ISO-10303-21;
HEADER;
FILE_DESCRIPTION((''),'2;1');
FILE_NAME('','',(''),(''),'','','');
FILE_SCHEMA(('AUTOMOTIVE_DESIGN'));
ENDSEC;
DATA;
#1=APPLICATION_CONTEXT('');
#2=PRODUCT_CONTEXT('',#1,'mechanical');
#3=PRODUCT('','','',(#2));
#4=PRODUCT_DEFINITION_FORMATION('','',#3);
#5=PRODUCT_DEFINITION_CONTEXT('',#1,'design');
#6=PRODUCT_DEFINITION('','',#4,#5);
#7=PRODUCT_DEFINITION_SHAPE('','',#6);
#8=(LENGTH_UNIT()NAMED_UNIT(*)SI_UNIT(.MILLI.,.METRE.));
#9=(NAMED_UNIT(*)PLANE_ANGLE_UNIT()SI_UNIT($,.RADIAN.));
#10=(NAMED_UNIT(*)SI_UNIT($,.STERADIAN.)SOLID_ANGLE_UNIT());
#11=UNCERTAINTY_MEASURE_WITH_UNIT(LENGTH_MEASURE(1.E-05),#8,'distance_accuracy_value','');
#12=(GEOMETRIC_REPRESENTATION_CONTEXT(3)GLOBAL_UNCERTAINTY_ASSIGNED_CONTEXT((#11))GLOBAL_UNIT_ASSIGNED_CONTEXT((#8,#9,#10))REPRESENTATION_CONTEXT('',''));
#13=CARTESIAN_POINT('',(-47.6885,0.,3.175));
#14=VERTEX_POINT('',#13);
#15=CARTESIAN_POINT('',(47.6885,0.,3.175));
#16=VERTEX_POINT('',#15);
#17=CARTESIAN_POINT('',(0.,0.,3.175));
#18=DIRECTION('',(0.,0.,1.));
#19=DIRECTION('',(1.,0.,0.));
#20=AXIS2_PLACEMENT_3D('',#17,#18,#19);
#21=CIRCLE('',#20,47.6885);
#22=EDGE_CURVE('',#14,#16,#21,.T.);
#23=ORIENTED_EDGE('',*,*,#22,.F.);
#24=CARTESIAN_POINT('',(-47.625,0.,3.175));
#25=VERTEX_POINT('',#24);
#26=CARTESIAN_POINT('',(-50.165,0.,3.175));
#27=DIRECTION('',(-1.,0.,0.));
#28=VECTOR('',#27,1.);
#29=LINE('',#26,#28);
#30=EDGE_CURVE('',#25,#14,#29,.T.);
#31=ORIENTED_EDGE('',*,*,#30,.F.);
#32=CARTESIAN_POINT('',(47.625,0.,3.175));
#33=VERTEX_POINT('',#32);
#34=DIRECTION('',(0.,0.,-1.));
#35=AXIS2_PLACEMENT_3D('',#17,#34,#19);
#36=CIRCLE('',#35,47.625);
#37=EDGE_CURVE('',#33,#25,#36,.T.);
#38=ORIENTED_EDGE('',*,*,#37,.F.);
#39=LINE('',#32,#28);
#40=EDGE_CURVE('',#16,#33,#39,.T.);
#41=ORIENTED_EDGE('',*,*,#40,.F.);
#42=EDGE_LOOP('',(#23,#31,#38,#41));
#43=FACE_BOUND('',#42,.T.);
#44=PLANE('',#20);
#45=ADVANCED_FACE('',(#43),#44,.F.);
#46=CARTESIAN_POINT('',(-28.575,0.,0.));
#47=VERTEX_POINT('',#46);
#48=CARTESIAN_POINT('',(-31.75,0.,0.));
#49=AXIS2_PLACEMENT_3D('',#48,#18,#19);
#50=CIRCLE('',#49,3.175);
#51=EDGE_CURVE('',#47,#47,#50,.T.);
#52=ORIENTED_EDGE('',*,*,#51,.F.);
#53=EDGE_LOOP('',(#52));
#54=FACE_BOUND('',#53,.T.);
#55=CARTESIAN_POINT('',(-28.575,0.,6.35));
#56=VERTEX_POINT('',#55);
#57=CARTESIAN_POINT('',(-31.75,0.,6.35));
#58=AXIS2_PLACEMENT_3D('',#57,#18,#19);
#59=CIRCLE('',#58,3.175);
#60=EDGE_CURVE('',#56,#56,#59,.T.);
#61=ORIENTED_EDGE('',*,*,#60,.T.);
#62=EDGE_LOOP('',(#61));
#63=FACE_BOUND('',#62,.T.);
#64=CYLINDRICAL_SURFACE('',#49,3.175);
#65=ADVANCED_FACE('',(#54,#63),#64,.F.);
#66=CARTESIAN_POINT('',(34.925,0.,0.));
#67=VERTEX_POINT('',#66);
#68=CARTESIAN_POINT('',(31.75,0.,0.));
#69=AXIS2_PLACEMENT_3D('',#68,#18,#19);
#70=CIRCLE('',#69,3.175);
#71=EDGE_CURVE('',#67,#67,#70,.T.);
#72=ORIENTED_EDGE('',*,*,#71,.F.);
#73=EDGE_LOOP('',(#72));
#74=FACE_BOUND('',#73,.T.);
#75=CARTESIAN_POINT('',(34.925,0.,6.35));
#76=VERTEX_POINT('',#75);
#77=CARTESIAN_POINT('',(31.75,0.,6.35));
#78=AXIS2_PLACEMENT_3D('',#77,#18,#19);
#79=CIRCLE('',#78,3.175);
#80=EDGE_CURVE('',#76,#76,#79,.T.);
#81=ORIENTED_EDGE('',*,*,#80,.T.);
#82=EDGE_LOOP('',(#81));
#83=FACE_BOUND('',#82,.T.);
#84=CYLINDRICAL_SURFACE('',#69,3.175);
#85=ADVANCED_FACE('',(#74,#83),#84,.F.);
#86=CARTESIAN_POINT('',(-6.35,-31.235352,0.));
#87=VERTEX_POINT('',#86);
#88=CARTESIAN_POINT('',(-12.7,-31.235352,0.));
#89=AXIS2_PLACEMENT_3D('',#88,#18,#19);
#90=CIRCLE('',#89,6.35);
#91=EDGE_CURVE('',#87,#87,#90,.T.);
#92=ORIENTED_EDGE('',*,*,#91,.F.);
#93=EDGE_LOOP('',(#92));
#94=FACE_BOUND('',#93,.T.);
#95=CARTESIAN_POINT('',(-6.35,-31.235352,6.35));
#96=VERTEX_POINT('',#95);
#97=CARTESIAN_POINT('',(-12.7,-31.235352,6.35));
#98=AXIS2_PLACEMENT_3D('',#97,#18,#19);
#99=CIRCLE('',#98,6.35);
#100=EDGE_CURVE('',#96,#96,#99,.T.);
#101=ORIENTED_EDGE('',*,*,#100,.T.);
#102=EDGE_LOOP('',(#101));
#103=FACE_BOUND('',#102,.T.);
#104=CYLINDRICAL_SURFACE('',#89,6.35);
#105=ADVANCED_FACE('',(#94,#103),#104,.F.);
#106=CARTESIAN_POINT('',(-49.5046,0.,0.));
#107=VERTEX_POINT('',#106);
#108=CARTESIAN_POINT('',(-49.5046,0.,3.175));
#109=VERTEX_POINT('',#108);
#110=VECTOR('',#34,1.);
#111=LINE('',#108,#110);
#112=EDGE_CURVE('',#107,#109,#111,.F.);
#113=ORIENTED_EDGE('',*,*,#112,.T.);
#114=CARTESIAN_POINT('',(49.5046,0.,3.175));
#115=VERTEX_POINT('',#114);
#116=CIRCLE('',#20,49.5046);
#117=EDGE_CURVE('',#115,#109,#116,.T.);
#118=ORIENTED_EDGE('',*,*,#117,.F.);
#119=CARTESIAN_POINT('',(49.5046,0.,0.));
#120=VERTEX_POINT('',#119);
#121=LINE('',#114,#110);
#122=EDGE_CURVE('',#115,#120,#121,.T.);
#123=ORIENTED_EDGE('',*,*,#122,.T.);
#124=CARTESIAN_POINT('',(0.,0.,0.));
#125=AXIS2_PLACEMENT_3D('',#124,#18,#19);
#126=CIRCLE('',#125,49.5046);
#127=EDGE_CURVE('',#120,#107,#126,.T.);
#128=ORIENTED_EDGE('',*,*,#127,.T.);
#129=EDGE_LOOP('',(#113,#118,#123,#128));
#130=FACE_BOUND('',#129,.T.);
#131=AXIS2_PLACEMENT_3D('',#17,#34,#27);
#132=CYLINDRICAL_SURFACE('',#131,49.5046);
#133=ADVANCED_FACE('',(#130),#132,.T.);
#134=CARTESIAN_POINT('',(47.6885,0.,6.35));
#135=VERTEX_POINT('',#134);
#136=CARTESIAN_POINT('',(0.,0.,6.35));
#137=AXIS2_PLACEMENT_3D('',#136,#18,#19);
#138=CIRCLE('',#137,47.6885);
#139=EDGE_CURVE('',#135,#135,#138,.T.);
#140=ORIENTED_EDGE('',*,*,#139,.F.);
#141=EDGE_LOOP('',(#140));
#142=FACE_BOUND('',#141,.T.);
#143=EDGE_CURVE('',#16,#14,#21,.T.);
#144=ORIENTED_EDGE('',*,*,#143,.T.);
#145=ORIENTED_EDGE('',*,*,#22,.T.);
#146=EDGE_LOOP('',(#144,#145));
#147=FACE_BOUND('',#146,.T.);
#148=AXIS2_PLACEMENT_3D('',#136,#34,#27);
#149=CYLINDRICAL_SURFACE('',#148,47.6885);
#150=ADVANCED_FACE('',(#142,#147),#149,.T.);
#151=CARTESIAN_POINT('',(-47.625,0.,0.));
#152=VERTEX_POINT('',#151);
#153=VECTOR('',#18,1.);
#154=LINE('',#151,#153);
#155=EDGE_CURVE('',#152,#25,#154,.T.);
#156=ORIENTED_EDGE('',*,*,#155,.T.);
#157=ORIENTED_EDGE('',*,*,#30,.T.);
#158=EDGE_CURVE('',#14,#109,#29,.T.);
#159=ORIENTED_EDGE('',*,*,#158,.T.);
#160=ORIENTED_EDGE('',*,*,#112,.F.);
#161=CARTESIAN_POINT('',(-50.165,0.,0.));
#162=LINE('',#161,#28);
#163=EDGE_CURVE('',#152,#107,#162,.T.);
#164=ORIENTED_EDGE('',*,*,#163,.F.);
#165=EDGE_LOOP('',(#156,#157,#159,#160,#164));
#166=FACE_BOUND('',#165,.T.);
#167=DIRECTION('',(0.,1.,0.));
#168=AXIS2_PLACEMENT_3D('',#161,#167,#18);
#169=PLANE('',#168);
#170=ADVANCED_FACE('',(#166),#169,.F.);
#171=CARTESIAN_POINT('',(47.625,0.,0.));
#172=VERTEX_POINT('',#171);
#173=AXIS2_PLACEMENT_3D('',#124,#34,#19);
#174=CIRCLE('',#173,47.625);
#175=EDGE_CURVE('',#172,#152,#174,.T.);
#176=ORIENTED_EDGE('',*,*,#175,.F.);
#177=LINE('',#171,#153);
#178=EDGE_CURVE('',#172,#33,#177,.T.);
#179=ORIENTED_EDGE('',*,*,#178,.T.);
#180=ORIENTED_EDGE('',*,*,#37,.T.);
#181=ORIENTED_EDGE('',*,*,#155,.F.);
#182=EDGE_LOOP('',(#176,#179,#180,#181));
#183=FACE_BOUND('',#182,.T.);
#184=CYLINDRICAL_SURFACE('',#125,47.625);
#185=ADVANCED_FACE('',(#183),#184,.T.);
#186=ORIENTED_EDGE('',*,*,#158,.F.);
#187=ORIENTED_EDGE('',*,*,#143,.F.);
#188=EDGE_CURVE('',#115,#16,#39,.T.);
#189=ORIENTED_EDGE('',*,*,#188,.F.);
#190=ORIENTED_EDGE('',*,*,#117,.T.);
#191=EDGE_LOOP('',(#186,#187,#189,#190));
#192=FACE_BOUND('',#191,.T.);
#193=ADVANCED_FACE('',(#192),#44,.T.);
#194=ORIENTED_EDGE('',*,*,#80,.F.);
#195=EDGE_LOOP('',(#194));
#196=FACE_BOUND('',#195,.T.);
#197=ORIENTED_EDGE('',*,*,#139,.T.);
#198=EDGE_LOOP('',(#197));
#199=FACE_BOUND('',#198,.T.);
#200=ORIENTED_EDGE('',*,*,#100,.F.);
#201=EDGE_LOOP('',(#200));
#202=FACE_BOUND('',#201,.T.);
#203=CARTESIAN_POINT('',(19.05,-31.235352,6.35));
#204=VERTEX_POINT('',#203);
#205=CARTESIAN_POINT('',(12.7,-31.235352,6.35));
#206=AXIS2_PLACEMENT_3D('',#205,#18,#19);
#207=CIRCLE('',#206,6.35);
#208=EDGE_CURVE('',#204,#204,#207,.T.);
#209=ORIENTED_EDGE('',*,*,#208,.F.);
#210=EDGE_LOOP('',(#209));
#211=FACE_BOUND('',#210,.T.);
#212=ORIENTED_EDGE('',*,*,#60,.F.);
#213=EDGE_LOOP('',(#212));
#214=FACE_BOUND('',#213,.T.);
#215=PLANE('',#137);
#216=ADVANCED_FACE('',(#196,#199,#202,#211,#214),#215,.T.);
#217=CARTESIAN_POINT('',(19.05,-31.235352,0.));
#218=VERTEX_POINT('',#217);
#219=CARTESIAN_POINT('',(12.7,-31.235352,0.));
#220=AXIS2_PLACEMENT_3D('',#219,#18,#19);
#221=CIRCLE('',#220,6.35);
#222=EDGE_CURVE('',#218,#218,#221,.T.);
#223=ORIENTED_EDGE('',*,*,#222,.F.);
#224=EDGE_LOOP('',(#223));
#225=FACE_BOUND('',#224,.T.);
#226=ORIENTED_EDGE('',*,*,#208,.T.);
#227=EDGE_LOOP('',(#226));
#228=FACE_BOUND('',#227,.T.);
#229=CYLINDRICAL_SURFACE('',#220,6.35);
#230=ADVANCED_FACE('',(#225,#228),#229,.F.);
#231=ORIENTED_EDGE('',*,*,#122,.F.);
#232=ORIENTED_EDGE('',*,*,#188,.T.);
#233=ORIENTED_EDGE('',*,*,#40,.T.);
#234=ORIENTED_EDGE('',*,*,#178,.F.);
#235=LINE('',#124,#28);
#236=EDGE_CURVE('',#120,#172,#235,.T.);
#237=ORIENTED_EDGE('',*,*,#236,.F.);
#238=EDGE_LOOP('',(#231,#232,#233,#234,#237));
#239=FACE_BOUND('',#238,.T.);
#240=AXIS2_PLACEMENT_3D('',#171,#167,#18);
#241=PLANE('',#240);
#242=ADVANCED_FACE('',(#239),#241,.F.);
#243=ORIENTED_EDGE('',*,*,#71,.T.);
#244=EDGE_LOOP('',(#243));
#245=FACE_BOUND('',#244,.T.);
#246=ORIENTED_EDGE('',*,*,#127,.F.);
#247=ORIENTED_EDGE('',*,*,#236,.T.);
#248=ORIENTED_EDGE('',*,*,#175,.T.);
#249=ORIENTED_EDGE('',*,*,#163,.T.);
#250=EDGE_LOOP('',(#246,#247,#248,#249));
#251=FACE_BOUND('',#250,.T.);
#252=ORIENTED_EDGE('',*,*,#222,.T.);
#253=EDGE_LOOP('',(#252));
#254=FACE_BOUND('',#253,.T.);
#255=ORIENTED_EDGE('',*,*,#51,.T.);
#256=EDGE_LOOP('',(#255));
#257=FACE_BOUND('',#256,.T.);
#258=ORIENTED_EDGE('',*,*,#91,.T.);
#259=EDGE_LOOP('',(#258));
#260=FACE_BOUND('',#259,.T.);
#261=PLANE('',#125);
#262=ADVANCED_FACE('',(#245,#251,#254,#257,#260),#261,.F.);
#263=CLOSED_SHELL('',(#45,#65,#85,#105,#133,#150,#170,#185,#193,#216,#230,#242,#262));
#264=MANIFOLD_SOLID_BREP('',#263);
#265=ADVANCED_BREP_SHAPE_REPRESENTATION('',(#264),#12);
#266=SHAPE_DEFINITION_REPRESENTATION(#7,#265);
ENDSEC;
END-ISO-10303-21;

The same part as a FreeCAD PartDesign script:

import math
import FreeCAD as App
import Part
import Sketcher

V = App.Vector
Q = App.Units.Quantity

doc = App.newDocument("Part")
params = doc.addObject("Spreadsheet::Sheet", "Params")
for row, (alias, value) in enumerate([
    ("sketch1_diameter", "3.898 in"),
    ("pad1_length", "0.125 in"),
    ("sketch2_diameter", "3.755 in"),
    ("pad2_length", "0.125 in"),
    ("sketch3_diameter", "0.5 in"),
    ("sketch3_diameter2", "0.25 in"),
    ("sketch4_width", "0.1 in"),
    ("sketch4_radius", "1.975 in"),
], start=1):
    params.set(f"A{row}", alias)
    params.set(f"B{row}", "=" + value)
    params.setAlias(f"B{row}", alias)

body = doc.addObject("PartDesign::Body", "Body")

sketch1 = body.newObject("Sketcher::SketchObject", "Sketch")
sketch1.AttachmentSupport = (doc.getObject("XY_Plane"), [""])
sketch1.MapMode = "FlatFace"
sketch1.addGeometry(Part.Circle(V(0, 0, 0), V(0, 0, 1), 50), False)
sketch1.addConstraint([
    Sketcher.Constraint("Coincident", 0, 3, -1, 1),
    Sketcher.Constraint("Diameter", 0, Q("3.898 in")),
])
sketch1.setExpression("Constraints[1]", "Params.sketch1_diameter")
pad1 = body.newObject("PartDesign::Pad", "Pad")
pad1.Profile = sketch1
pad1.setExpression("Length", "Params.pad1_length")

sketch2 = body.newObject("Sketcher::SketchObject", "Sketch001")
sketch2.AttachmentSupport = (doc.getObject("XY_Plane"), [""])
sketch2.MapMode = "FlatFace"
sketch2.AttachmentOffset = App.Placement(V(0, 0, 0.125 * 25.4), App.Rotation())
sketch2.addGeometry(Part.Circle(V(0, 0, 0), V(0, 0, 1), 48), False)
sketch2.addConstraint([
    Sketcher.Constraint("Coincident", 0, 3, -1, 1),
    Sketcher.Constraint("Diameter", 0, Q("3.755 in")),
])
sketch2.setExpression("Constraints[1]", "Params.sketch2_diameter")
pad2 = body.newObject("PartDesign::Pad", "Pad001")
pad2.Profile = sketch2
pad2.setExpression("Length", "Params.pad2_length")

sketch3 = body.newObject("Sketcher::SketchObject", "Sketch002")
sketch3.AttachmentSupport = (doc.getObject("XY_Plane"), [""])
sketch3.MapMode = "FlatFace"
sketch3.AttachmentOffset = App.Placement(V(0, 0, 0.25 * 25.4), App.Rotation())
sketch3.addGeometry([
    Part.Circle(V(-31.8, 0, 0), V(0, 0, 1), 3.2),
    Part.Circle(V(31.8, 0, 0), V(0, 0, 1), 3.2),
    Part.Circle(V(-12.7, -31.2, 0), V(0, 0, 1), 6.3),
    Part.Circle(V(12.7, -31.2, 0), V(0, 0, 1), 6.3),
], False)
sketch3.addConstraint([
    Sketcher.Constraint("Equal", 0, 1),
    Sketcher.Constraint("Equal", 2, 3),
    Sketcher.Constraint("Symmetric", 0, 3, 1, 3, -1, 1),
    Sketcher.Constraint("Symmetric", 2, 3, 3, 3, -2),
    Sketcher.Constraint("PointOnObject", 0, 3, -1),
    Sketcher.Constraint("Diameter", 2, Q("0.5 in")),
    Sketcher.Constraint("Diameter", 0, Q("0.25 in")),
    Sketcher.Constraint("DistanceX", 2, 3, 3, 3, Q("1 in")),
    Sketcher.Constraint("DistanceX", 0, 3, 1, 3, Q("2.5 in")),
    Sketcher.Constraint("DistanceY", 2, 3, -1, 1, 31.235352),
])
sketch3.setExpression("Constraints[5]", "Params.sketch3_diameter")
sketch3.setExpression("Constraints[6]", "Params.sketch3_diameter2")
pocket1 = body.newObject("PartDesign::Pocket", "Pocket")
pocket1.Profile = sketch3
pocket1.Type = "ThroughAll"

sketch4 = body.newObject("Sketcher::SketchObject", "Sketch003")
sketch4.AttachmentSupport = (doc.getObject("XY_Plane"), [""])
sketch4.MapMode = "FlatFace"
sketch4.AttachmentOffset = App.Placement(V(0, 0, 0.125 * 25.4), App.Rotation())
sketch4.addGeometry([
    Part.LineSegment(V(-47.6, 0, 0), V(-50.2, 0, 0)),
    Part.ArcOfCircle(Part.Circle(V(0, 0, 0), V(0, 0, 1), 50.2), math.radians(180), math.radians(360)),
    Part.LineSegment(V(50.2, 0, 0), V(47.6, 0, 0)),
    Part.ArcOfCircle(Part.Circle(V(0, 0, 0), V(0, 0, 1), 47.6), math.radians(180), math.radians(360)),
], False)
sketch4.addConstraint([
    Sketcher.Constraint("Coincident", 0, 2, 1, 1),
    Sketcher.Constraint("Coincident", 1, 2, 2, 1),
    Sketcher.Constraint("Coincident", 2, 2, 3, 2),
    Sketcher.Constraint("Coincident", 3, 1, 0, 1),
    Sketcher.Constraint("Horizontal", 0),
    Sketcher.Constraint("Horizontal", 2),
    Sketcher.Constraint("Coincident", 1, 3, -1, 1),
    Sketcher.Constraint("Coincident", 3, 3, -1, 1),
    Sketcher.Constraint("PointOnObject", 0, 2, -1),
    Sketcher.Constraint("PointOnObject", 1, 2, -1),
    Sketcher.Constraint("DistanceX", 0, 2, 0, 1, Q("0.1 in")),
    Sketcher.Constraint("Radius", 1, Q("1.975 in")),
])
sketch4.setExpression("Constraints[10]", "Params.sketch4_width")
sketch4.setExpression("Constraints[11]", "Params.sketch4_radius")
pocket2 = body.newObject("PartDesign::Pocket", "Pocket001")
pocket2.Profile = sketch4
pocket2.Type = "ThroughAll"

doc.recompute()
